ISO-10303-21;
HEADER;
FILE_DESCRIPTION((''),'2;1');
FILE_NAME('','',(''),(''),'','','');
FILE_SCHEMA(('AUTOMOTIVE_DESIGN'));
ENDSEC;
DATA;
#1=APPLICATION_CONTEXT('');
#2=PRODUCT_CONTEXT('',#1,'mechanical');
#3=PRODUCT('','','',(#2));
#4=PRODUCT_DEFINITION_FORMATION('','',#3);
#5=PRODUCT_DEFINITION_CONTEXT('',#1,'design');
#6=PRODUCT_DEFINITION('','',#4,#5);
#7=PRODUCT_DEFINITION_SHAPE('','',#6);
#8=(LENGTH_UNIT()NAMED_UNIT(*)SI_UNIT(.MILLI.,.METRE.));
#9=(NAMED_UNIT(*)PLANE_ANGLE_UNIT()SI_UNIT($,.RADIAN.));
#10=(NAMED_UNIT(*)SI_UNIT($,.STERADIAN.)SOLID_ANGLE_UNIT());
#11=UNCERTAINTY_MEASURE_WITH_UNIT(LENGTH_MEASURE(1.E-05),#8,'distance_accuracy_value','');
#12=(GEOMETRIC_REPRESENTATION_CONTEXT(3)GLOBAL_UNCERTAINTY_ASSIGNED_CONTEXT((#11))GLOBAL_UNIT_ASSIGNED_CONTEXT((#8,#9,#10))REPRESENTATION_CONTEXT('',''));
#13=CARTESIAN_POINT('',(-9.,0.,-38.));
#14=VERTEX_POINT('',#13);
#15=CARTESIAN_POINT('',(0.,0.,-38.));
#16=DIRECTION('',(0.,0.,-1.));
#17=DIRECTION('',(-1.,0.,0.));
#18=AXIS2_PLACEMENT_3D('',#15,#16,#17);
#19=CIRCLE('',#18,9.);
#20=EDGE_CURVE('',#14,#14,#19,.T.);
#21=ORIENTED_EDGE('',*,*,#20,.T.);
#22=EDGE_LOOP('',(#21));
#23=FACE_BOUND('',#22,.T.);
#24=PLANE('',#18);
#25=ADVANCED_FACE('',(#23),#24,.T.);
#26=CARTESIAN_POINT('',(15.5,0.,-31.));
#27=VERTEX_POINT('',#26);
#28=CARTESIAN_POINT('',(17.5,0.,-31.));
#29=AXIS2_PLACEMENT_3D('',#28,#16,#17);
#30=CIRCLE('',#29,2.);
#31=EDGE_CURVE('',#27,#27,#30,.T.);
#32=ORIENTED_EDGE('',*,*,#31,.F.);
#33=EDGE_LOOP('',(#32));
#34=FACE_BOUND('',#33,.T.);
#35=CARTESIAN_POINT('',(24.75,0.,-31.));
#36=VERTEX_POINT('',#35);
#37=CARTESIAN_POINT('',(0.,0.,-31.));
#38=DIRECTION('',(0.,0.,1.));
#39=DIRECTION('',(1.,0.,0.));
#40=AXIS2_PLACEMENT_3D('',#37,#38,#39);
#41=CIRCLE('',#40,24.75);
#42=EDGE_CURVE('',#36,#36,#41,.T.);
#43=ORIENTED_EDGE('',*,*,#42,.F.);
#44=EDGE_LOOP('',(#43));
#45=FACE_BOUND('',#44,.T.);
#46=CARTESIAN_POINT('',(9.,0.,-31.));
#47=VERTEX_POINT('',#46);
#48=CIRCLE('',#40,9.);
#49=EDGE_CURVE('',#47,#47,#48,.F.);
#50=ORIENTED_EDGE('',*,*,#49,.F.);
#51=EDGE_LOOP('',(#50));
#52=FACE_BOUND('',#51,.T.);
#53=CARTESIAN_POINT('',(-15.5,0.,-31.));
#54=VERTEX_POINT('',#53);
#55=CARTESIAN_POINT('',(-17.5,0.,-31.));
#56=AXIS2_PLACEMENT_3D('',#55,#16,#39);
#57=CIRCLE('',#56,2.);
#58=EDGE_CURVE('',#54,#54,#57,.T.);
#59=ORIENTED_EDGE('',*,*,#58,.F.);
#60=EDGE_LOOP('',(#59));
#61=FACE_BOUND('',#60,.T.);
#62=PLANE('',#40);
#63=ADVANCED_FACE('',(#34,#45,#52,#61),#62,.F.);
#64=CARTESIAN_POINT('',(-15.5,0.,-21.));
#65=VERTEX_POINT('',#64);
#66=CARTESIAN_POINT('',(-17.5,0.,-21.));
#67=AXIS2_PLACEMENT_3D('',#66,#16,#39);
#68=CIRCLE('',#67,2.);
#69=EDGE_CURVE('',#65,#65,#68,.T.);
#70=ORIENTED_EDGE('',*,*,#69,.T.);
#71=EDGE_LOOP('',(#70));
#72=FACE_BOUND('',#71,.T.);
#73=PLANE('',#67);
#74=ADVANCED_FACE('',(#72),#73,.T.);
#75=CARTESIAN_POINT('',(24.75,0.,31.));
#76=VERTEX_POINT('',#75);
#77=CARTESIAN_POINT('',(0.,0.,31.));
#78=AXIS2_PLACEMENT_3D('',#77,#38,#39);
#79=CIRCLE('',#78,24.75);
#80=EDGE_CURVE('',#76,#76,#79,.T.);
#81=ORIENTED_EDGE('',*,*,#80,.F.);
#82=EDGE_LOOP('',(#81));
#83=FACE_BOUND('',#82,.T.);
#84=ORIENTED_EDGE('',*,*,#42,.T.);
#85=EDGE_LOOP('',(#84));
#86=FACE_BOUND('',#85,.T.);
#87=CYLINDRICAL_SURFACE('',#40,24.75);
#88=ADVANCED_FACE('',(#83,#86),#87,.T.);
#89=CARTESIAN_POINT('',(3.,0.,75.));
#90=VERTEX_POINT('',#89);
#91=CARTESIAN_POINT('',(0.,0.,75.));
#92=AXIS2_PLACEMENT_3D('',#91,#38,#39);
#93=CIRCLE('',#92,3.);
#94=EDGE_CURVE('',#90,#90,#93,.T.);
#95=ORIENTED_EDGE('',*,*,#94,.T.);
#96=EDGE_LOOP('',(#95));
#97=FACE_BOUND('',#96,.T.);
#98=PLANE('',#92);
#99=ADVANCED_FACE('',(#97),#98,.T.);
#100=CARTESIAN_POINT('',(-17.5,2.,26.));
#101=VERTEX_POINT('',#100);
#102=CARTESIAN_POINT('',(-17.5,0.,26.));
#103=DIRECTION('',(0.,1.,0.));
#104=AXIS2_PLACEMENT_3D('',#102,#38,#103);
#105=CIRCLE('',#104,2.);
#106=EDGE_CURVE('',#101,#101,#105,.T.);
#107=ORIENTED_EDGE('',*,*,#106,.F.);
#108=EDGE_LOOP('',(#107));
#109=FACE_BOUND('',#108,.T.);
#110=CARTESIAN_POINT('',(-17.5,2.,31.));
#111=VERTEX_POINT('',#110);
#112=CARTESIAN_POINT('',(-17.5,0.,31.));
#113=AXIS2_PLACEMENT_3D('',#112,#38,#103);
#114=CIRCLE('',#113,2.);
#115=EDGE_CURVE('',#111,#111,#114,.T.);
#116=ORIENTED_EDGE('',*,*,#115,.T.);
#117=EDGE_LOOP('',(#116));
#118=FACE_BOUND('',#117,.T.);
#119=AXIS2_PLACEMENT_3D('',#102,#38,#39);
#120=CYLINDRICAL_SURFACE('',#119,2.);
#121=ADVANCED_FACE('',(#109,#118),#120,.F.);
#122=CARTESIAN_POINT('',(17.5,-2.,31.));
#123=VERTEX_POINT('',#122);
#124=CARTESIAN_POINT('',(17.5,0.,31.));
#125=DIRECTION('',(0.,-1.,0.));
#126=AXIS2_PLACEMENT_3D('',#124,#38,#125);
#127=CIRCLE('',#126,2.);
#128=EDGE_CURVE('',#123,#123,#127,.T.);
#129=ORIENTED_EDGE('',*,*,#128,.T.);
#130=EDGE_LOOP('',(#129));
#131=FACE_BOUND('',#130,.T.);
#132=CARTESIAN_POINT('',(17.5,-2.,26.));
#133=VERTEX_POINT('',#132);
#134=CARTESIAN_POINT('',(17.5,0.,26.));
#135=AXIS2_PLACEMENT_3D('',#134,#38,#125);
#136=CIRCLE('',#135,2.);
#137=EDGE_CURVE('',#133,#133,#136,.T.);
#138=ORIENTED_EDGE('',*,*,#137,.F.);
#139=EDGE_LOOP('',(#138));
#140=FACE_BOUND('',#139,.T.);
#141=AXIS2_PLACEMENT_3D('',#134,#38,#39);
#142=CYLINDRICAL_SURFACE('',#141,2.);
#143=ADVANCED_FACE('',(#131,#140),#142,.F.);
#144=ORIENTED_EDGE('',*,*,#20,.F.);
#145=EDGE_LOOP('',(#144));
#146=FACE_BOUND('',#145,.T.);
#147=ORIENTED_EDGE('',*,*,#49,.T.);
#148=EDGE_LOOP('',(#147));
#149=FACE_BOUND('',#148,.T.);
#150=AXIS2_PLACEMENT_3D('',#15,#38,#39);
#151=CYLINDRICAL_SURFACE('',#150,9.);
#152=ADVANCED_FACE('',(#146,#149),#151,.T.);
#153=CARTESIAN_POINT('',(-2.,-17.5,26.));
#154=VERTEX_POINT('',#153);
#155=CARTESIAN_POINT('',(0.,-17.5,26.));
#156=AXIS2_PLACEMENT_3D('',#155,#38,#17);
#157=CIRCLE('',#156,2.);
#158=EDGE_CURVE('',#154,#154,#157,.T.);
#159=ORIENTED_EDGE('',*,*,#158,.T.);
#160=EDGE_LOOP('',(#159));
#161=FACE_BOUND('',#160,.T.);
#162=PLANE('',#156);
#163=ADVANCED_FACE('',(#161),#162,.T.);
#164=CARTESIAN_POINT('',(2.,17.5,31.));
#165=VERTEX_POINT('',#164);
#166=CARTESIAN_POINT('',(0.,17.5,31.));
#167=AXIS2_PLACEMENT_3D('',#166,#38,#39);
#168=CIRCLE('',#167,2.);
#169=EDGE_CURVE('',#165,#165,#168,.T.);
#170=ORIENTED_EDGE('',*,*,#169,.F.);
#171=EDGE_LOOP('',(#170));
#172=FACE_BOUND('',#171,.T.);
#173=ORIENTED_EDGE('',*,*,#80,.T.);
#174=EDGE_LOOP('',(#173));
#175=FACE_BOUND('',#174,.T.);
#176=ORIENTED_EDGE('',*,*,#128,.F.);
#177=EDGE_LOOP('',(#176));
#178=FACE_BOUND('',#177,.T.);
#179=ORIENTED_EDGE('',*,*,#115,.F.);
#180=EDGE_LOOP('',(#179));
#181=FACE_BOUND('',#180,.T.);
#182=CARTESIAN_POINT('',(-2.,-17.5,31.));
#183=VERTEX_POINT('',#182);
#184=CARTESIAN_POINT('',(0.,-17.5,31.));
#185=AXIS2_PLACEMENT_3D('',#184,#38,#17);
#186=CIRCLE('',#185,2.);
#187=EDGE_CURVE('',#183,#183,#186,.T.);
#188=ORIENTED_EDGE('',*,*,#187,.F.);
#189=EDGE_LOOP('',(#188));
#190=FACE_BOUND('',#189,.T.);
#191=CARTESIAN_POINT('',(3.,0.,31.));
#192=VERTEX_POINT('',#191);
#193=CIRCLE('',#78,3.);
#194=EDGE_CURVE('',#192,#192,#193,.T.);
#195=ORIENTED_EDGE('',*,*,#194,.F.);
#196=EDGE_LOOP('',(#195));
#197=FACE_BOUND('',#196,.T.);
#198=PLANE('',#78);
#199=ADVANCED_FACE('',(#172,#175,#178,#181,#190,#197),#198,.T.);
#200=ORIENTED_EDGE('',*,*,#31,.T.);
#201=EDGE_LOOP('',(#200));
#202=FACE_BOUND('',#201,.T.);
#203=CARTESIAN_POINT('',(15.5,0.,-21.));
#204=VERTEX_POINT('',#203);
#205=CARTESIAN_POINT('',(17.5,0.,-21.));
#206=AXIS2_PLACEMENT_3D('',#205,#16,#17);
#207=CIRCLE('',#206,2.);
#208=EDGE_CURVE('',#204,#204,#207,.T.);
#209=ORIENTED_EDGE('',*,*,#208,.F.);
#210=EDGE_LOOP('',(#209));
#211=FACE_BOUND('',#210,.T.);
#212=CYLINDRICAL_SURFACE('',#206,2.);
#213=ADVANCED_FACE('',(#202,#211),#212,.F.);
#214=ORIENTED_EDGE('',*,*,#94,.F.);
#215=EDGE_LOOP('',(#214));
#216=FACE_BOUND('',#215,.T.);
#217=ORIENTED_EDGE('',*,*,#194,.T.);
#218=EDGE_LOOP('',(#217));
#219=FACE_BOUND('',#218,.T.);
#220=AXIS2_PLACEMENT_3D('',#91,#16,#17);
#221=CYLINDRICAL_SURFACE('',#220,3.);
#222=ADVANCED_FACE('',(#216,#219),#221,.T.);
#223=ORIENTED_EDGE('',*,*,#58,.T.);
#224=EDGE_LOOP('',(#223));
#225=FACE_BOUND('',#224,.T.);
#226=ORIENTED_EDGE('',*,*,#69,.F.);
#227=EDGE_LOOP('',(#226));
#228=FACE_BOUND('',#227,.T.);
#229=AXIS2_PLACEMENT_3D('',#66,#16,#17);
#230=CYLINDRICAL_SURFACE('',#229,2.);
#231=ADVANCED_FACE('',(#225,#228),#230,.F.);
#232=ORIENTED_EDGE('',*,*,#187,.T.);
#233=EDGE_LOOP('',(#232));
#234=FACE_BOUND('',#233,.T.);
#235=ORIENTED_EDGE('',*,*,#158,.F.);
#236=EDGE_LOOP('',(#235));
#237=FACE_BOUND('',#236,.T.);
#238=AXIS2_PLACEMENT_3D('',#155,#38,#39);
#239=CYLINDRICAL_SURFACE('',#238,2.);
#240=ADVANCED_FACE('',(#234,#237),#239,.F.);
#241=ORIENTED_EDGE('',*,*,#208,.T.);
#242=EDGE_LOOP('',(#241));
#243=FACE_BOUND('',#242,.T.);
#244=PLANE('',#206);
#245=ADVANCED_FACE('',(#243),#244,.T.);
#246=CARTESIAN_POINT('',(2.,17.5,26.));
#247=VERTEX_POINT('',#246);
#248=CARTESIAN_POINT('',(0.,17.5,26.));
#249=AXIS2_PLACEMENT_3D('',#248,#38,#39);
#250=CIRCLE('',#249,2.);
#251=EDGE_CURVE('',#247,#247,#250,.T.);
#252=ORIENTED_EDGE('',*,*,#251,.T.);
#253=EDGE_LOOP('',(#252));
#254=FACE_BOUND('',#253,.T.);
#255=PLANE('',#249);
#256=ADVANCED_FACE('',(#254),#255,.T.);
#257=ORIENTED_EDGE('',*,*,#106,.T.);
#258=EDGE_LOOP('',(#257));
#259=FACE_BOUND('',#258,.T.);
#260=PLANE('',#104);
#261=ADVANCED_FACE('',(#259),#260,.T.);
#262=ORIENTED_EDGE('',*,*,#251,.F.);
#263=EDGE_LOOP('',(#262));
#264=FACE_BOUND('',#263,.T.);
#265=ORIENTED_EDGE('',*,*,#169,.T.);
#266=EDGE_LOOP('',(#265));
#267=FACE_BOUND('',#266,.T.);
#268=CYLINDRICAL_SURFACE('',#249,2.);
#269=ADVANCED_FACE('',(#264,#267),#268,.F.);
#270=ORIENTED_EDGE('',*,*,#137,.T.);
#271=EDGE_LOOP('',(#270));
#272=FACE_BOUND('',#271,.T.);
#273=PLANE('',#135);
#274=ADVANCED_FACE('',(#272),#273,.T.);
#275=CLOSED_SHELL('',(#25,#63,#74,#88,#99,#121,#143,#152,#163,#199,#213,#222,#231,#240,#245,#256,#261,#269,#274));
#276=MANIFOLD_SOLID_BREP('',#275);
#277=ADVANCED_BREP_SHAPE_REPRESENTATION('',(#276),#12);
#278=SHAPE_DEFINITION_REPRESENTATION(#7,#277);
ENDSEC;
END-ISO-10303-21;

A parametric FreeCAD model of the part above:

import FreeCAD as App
import Part
import Sketcher
from FreeCAD import Vector

doc = App.newDocument("Part")
params = doc.addObject("Spreadsheet::Sheet", "Params")
for row, (alias, value) in enumerate([
    ("sketch1_diameter", "49.5 mm"),
    ("pad1_length", "62 mm"),
    ("sketch2_diameter", "6 mm"),
    ("pad2_length", "44 mm"),
    ("sketch3_diameter", "4 mm"),
    ("pocket1_length", "5 mm"),
    ("sketch4_diameter", "4 mm"),
    ("pocket2_length", "10 mm"),
    ("sketch5_diameter", "18 mm"),
    ("pad3_length", "7 mm"),
], start=1):
    params.set(f"A{row}", alias)
    params.set(f"B{row}", "=" + value)
    params.setAlias(f"B{row}", alias)

body = doc.addObject("PartDesign::Body", "Body")

sketch1 = body.newObject("Sketcher::SketchObject", "Sketch")
sketch1.AttachmentSupport = (doc.getObject("XY_Plane"), [""])
sketch1.MapMode = "FlatFace"
sketch1.addGeometry(Part.Circle(Vector(0, 0, 0), Vector(0, 0, 1), 25), False)
sketch1.addConstraint([
    Sketcher.Constraint("Coincident", 0, 3, -1, 1),
    Sketcher.Constraint("Diameter", 0, 49.5),
])
sketch1.setExpression("Constraints[1]", "Params.sketch1_diameter")
pad1 = body.newObject("PartDesign::Pad", "Pad")
pad1.Profile = sketch1
pad1.setExpression("Length", "Params.pad1_length")
pad1.Midplane = True

sketch2 = body.newObject("Sketcher::SketchObject", "Sketch001")
sketch2.AttachmentSupport = (doc.getObject("XY_Plane"), [""])
sketch2.MapMode = "FlatFace"
sketch2.AttachmentOffset = App.Placement(Vector(0, 0, 31), App.Rotation())
sketch2.addGeometry(Part.Circle(Vector(0, 0, 0), Vector(0, 0, 1), 3), False)
sketch2.addConstraint([
    Sketcher.Constraint("Coincident", 0, 3, -1, 1),
    Sketcher.Constraint("Diameter", 0, 6.0),
])
sketch2.setExpression("Constraints[1]", "Params.sketch2_diameter")
pad2 = body.newObject("PartDesign::Pad", "Pad001")
pad2.Profile = sketch2
pad2.setExpression("Length", "Params.pad2_length")

sketch3 = body.newObject("Sketcher::SketchObject", "Sketch002")
sketch3.AttachmentSupport = (doc.getObject("XY_Plane"), [""])
sketch3.MapMode = "FlatFace"
sketch3.AttachmentOffset = App.Placement(Vector(0, 0, 31), App.Rotation())
sketch3.addGeometry(Part.Circle(Vector(0, 17.5, 0), Vector(0, 0, 1), 2), False)
sketch3.addConstraint([
    Sketcher.Constraint("PointOnObject", 0, 3, -2),
    Sketcher.Constraint("Diameter", 0, 4.0),
    Sketcher.Constraint("DistanceY", -1, 1, 0, 3, 17.5),
])
sketch3.setExpression("Constraints[1]", "Params.sketch3_diameter")
pocket1 = body.newObject("PartDesign::Pocket", "Pocket")
pocket1.Profile = sketch3
pocket1.setExpression("Length", "Params.pocket1_length")
doc.recompute()

polarpattern = body.newObject("PartDesign::PolarPattern", "PolarPattern")
polarpattern.Originals = [pocket1]
polarpattern.Axis = (doc.getObject("Z_Axis"), [""])
polarpattern.Angle = 360
polarpattern.Occurrences = 4
body.Tip = polarpattern

sketch4 = body.newObject("Sketcher::SketchObject", "Sketch003")
sketch4.AttachmentSupport = (doc.getObject("XY_Plane"), [""])
sketch4.MapMode = "FlatFace"
sketch4.AttachmentOffset = App.Placement(Vector(0, 0, -31), App.Rotation())
sketch4.addGeometry(Part.Circle(Vector(17.5, 0, 0), Vector(0, 0, 1), 2), False)
sketch4.addConstraint([
    Sketcher.Constraint("PointOnObject", 0, 3, -1),
    Sketcher.Constraint("Diameter", 0, 4.0),
    Sketcher.Constraint("DistanceX", -1, 1, 0, 3, 17.5),
])
sketch4.setExpression("Constraints[1]", "Params.sketch4_diameter")
pocket2 = body.newObject("PartDesign::Pocket", "Pocket001")
pocket2.Profile = sketch4
pocket2.setExpression("Length", "Params.pocket2_length")
pocket2.Reversed = True
doc.recompute()

polarpattern2 = body.newObject("PartDesign::PolarPattern", "PolarPattern001")
polarpattern2.Originals = [pocket2]
polarpattern2.Axis = (doc.getObject("Z_Axis"), [""])
polarpattern2.Angle = 360
polarpattern2.Occurrences = 2
body.Tip = polarpattern2

sketch5 = body.newObject("Sketcher::SketchObject", "Sketch004")
sketch5.AttachmentSupport = (doc.getObject("XY_Plane"), [""])
sketch5.MapMode = "FlatFace"
sketch5.AttachmentOffset = App.Placement(Vector(0, 0, -31), App.Rotation())
sketch5.addGeometry(Part.Circle(Vector(0, 0, 0), Vector(0, 0, 1), 9), False)
sketch5.addConstraint([
    Sketcher.Constraint("Coincident", 0, 3, -1, 1),
    Sketcher.Constraint("Diameter", 0, 18.0),
])
sketch5.setExpression("Constraints[1]", "Params.sketch5_diameter")
pad3 = body.newObject("PartDesign::Pad", "Pad002")
pad3.Profile = sketch5
pad3.setExpression("Length", "Params.pad3_length")
pad3.Reversed = True

doc.recompute()
